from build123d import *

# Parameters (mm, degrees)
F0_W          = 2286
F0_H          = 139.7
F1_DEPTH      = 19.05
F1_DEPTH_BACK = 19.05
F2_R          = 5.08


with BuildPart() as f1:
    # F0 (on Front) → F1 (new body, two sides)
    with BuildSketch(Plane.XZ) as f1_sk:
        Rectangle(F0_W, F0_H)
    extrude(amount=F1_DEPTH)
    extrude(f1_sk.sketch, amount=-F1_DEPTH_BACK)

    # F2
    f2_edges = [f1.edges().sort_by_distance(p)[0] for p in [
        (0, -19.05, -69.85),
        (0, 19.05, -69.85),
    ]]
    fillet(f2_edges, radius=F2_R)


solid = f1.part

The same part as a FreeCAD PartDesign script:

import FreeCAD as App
import Part
import Sketcher
Q = App.Units.Quantity


def edges_at(feature, points):
    """Names of the edges that pass closest to the given points."""
    edges = feature.Shape.Edges
    near = lambda p: min(range(len(edges)), key=lambda i: edges[i].distToShape(Part.Vertex(*p))[0])
    return sorted({f"Edge{near(p) + 1}" for p in points})

doc = App.newDocument("Part")
body = doc.addObject("PartDesign::Body", "Body")

# Sketch on XZ plane
sketch1 = body.newObject("Sketcher::SketchObject", "Sketch")
sketch1.AttachmentSupport = (doc.getObject("XZ_Plane"), [""])
sketch1.MapMode = "FlatFace"
sketch1.addGeometry(Part.LineSegment(App.Vector(-1143, 70, 0), App.Vector(-1143, -70, 0)), False)
sketch1.addGeometry(Part.LineSegment(App.Vector(-1143, -70, 0), App.Vector(1143, -70, 0)), False)
sketch1.addGeometry(Part.LineSegment(App.Vector(1143, -70, 0), App.Vector(1143, 70, 0)), False)
sketch1.addGeometry(Part.LineSegment(App.Vector(1143, 70, 0), App.Vector(-1143, 70, 0)), False)
sketch1.addConstraint(Sketcher.Constraint("Coincident", 0, 2, 1, 1))
sketch1.addConstraint(Sketcher.Constraint("Coincident", 1, 2, 2, 1))
sketch1.addConstraint(Sketcher.Constraint("Coincident", 2, 2, 3, 1))
sketch1.addConstraint(Sketcher.Constraint("Coincident", 3, 2, 0, 1))
sketch1.addConstraint(Sketcher.Constraint("Vertical", 0))
sketch1.addConstraint(Sketcher.Constraint("Horizontal", 1))
sketch1.addConstraint(Sketcher.Constraint("Vertical", 2))
sketch1.addConstraint(Sketcher.Constraint("Horizontal", 3))
sketch1.addConstraint(Sketcher.Constraint("Symmetric", 0, 2, 2, 2, -1, 1))
sketch1.addConstraint(Sketcher.Constraint("DistanceX", 1, 1, 1, 2, Q("90 in")))
sketch1.addConstraint(Sketcher.Constraint("DistanceY", 0, 2, 0, 1, Q("5.5 in")))
pad1 = body.newObject("PartDesign::Pad", "Pad")
pad1.Profile = sketch1
pad1.Type = "TwoLengths"
pad1.Length = Q("0.75 in")
pad1.Length2 = Q("0.75 in")
doc.recompute()

fillet = body.newObject("PartDesign::Fillet", "Fillet")
fillet.Base = (pad1, edges_at(pad1, [(0, -19.05, -69.85), (0, 19.05, -69.85)]))
fillet.Radius = Q("0.2 in")

doc.recompute()
